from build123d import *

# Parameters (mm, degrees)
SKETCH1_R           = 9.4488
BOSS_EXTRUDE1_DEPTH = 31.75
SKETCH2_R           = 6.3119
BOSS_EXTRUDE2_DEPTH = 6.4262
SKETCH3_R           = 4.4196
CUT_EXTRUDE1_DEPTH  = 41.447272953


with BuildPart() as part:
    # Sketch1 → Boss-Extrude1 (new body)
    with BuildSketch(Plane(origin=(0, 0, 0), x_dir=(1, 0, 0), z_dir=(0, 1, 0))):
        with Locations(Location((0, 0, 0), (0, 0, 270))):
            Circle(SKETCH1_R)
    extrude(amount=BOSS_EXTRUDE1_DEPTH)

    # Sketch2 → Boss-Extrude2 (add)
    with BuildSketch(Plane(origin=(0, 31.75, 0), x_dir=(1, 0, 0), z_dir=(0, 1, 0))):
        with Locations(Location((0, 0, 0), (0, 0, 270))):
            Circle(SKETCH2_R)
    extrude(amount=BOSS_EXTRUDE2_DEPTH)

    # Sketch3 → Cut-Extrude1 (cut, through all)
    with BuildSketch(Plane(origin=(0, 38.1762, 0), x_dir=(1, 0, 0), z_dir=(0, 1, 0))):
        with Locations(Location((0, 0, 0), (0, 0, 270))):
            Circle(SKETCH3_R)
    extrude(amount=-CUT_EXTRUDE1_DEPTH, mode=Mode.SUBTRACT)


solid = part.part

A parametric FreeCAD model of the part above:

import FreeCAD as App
import Part
import Sketcher

V = App.Vector
Q = App.Units.Quantity

doc = App.newDocument("Part")
body = doc.addObject("PartDesign::Body", "Body")

# Sketch on XZ plane
sketch1 = doc.addObject("Sketcher::SketchObject", "Sketch")
body.addObject(sketch1)
sketch1.AttachmentSupport = (doc.XZ_Plane, [""])
sketch1.MapMode = "FlatFace"
sketch1.addGeometry(Part.Circle(V(0, 0, 0), V(0, 0, 1), 9.4488), False)
sketch1.addConstraint([
    Sketcher.Constraint("Coincident", 0, 3, -1, 1),
    Sketcher.Constraint("Diameter", 0, Q("0.744 in")),
])
pad1 = doc.addObject("PartDesign::Pad", "Pad")
body.addObject(pad1)
pad1.Profile = sketch1
pad1.Length = Q("1.25 in")
pad1.Reversed = True

# Sketch on XZ plane
sketch2 = doc.addObject("Sketcher::SketchObject", "Sketch001")
body.addObject(sketch2)
sketch2.AttachmentSupport = (doc.XZ_Plane, [""])
sketch2.MapMode = "FlatFace"
sketch2.AttachmentOffset = App.Placement(V(0, 0, -1.25 * 25.4), App.Rotation())
sketch2.addGeometry(Part.Circle(V(0, 0, 0), V(0, 0, 1), 6.3119), False)
sketch2.addConstraint([
    Sketcher.Constraint("Coincident", 0, 3, -1, 1),
    Sketcher.Constraint("Diameter", 0, Q("0.497 in")),
])
pad2 = doc.addObject("PartDesign::Pad", "Pad001")
body.addObject(pad2)
pad2.Profile = sketch2
pad2.Length = Q("0.253 in")
pad2.Reversed = True

# Sketch on XZ plane
sketch3 = doc.addObject("Sketcher::SketchObject", "Sketch002")
body.addObject(sketch3)
sketch3.AttachmentSupport = (doc.XZ_Plane, [""])
sketch3.MapMode = "FlatFace"
sketch3.AttachmentOffset = App.Placement(V(0, 0, -1.503 * 25.4), App.Rotation())
sketch3.addGeometry(Part.Circle(V(0, 0, 0), V(0, 0, 1), 4.4196), False)
sketch3.addConstraint([
    Sketcher.Constraint("Coincident", 0, 3, -1, 1),
    Sketcher.Constraint("Diameter", 0, Q("0.348 in")),
])
pocket1 = doc.addObject("PartDesign::Pocket", "Pocket")
body.addObject(pocket1)
pocket1.Profile = sketch3
pocket1.Type = "ThroughAll"
pocket1.Reversed = True

doc.recompute()
